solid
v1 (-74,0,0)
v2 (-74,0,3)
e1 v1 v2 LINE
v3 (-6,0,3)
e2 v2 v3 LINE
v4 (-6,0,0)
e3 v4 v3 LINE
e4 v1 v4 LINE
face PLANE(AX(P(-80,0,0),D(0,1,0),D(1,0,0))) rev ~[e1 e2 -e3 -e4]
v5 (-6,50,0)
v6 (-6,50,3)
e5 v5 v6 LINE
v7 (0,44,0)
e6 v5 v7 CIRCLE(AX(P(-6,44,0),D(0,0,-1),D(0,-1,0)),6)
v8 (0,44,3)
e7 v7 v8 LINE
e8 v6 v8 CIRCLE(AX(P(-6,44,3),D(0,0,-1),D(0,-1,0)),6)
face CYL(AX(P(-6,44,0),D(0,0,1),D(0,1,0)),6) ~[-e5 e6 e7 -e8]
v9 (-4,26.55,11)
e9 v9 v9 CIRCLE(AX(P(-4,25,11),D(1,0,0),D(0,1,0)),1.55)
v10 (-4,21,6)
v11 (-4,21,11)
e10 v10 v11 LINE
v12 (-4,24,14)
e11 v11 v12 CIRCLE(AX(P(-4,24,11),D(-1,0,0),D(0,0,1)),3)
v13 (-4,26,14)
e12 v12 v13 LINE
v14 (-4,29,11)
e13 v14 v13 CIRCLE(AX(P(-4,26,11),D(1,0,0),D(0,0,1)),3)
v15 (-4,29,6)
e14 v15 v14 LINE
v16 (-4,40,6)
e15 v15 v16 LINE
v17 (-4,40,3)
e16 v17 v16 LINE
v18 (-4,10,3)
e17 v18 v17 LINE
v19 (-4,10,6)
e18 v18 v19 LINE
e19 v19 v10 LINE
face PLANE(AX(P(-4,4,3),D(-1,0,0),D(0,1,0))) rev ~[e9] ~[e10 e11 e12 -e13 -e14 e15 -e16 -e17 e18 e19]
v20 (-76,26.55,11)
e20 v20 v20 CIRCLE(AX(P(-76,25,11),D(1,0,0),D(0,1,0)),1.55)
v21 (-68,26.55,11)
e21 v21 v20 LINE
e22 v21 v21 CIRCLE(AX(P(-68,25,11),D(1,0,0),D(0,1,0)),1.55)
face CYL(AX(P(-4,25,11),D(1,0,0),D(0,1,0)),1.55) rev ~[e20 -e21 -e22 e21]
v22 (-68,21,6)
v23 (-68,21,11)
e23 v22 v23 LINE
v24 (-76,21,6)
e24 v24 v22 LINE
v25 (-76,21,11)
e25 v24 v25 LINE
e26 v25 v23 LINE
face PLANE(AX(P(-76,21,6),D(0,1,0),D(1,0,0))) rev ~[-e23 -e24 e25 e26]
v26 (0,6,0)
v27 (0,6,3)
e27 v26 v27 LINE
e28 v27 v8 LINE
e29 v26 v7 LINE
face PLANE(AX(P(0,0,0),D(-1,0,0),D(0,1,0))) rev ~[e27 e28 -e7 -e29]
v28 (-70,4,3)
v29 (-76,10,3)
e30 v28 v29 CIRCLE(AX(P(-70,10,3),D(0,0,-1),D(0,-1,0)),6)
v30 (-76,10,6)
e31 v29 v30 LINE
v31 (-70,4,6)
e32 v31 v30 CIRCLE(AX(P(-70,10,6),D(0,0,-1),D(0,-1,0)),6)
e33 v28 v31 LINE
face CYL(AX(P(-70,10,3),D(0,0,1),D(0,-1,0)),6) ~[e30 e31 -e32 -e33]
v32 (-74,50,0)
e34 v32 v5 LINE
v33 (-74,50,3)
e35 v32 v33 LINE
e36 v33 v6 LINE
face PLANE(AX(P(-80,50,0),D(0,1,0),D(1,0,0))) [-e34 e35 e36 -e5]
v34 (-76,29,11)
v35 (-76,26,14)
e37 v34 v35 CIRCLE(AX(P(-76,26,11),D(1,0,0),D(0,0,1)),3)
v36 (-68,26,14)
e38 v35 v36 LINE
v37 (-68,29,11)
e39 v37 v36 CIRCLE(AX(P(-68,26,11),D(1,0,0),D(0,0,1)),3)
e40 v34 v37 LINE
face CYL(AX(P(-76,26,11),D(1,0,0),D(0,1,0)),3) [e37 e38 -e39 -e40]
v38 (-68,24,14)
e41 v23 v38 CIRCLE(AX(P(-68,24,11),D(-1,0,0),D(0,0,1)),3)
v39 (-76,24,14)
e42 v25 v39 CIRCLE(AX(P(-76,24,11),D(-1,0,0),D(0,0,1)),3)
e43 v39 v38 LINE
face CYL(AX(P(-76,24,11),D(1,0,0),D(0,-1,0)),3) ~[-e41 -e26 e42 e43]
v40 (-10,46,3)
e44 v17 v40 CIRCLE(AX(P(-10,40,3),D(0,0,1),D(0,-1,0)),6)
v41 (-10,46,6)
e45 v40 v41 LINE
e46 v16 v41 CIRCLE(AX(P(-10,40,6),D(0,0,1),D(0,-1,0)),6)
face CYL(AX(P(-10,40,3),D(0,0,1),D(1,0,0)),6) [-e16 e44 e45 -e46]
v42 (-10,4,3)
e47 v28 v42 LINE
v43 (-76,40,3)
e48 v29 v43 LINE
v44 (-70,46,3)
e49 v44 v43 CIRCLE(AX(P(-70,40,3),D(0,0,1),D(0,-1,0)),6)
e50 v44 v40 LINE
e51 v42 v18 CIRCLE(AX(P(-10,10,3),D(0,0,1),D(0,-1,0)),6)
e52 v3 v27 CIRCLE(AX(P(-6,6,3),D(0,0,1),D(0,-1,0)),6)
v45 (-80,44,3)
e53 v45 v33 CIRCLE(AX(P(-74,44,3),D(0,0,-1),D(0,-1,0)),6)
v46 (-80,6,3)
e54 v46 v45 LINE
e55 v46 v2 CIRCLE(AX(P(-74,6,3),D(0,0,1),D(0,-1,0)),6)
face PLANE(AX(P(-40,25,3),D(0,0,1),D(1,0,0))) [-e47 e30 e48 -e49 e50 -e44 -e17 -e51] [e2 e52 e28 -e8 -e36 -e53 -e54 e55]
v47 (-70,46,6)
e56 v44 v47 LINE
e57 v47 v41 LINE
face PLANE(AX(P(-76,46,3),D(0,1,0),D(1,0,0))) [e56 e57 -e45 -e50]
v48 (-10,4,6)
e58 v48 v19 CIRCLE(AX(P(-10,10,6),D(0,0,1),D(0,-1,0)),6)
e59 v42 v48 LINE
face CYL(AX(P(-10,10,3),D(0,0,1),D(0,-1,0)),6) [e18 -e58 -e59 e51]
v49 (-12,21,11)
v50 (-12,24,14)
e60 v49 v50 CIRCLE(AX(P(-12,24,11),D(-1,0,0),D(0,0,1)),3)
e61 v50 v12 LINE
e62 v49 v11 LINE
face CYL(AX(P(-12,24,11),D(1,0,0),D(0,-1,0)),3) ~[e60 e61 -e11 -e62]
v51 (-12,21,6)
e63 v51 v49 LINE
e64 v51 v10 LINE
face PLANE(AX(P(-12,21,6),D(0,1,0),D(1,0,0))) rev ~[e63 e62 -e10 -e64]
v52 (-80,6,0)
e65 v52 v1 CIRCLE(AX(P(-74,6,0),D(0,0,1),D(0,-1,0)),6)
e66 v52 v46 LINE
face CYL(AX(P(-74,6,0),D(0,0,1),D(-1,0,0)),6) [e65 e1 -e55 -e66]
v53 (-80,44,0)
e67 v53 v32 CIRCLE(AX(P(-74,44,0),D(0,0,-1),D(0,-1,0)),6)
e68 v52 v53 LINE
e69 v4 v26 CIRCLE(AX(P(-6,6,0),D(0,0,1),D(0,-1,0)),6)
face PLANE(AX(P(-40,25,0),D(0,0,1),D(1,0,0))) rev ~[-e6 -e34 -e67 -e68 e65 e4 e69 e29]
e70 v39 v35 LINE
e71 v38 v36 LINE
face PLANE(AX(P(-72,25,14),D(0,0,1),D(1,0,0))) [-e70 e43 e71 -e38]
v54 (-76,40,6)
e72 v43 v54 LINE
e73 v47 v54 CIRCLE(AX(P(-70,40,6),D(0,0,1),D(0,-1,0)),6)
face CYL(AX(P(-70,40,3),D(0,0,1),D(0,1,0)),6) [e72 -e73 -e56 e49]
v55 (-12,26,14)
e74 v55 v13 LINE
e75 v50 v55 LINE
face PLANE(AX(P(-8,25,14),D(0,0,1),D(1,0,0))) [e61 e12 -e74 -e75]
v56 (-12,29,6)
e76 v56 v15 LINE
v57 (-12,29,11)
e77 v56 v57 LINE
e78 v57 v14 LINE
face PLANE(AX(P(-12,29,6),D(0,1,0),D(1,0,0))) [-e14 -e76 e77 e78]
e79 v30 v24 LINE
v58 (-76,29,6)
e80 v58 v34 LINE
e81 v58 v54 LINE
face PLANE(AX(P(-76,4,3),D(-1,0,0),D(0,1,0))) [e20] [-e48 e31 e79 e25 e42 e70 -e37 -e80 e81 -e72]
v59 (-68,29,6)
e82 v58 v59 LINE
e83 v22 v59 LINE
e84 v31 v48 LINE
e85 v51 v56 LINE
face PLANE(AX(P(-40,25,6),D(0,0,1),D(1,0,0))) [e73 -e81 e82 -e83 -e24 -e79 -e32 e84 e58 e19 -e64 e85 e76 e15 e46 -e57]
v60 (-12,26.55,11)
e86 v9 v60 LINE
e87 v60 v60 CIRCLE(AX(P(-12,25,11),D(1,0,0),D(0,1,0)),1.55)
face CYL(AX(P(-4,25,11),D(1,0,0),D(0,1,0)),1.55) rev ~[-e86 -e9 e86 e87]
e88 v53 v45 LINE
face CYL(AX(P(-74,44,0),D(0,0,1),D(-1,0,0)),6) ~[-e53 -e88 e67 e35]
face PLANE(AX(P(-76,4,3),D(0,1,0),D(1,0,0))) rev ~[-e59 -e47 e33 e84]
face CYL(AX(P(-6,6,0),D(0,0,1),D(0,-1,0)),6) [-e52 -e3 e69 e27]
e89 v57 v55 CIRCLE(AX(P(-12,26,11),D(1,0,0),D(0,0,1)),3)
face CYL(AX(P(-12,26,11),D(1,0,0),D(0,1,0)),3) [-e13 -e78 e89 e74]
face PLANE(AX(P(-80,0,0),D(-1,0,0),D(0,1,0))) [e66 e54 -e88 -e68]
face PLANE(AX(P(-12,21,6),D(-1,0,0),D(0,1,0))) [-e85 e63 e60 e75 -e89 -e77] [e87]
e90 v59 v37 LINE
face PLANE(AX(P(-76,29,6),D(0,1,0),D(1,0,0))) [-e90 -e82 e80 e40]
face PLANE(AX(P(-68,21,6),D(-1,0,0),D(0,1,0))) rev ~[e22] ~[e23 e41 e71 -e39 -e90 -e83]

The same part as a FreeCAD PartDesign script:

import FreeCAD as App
import Part
import Sketcher
from FreeCAD import Vector
Q = App.Units.Quantity


def edges_at(feature, points):
    """Names of the edges that pass closest to the given points."""
    edges = feature.Shape.Edges
    near = lambda p: min(range(len(edges)), key=lambda i: edges[i].distToShape(Part.Vertex(*p))[0])
    return sorted({f"Edge{near(p) + 1}" for p in points})


def add_polygon(sketch, points):
    """Adds a closed chain of lines whose ends are joined by coincident constraints."""
    first, n = sketch.GeometryCount, len(points)
    for a, b in zip(points, points[1:] + points[:1]):
        sketch.addGeometry(Part.LineSegment(App.Vector(*a, 0), App.Vector(*b, 0)), False)
    for i in range(n):
        sketch.addConstraint(Sketcher.Constraint("Coincident", first + i, 2, first + (i + 1) % n, 1))

doc = App.newDocument("Part")
body = doc.addObject("PartDesign::Body", "Body")

sketch1 = body.newObject("Sketcher::SketchObject", "Sketch")
sketch1.AttachmentSupport = (doc.getObject("XY_Plane"), [""])
sketch1.MapMode = "FlatFace"
add_polygon(sketch1, [(-80, 50), (-80, 0), (0, 0), (0, 50)])
sketch1.addConstraint([
    Sketcher.Constraint("Vertical", 0),
    Sketcher.Constraint("Horizontal", 1),
    Sketcher.Constraint("Vertical", 2),
    Sketcher.Constraint("Horizontal", 3),
    Sketcher.Constraint("Coincident", 1, 2, -1, 1),
    Sketcher.Constraint("DistanceX", 1, 1, 1, 2, Q("80 mm")),
    Sketcher.Constraint("DistanceY", 0, 2, 0, 1, Q("50 mm")),
])
pad1 = body.newObject("PartDesign::Pad", "Pad")
pad1.Profile = sketch1
pad1.Length = 3

sketch2 = body.newObject("Sketcher::SketchObject", "Sketch001")
sketch2.AttachmentSupport = (doc.getObject("XY_Plane"), [""])
sketch2.MapMode = "FlatFace"
sketch2.AttachmentOffset = App.Placement(Vector(0, 0, 3), App.Rotation())
add_polygon(sketch2, [(-76, 46), (-76, 4), (-4, 4), (-4, 46)])
sketch2.addConstraint([
    Sketcher.Constraint("Vertical", 0),
    Sketcher.Constraint("Horizontal", 1),
    Sketcher.Constraint("Vertical", 2),
    Sketcher.Constraint("Horizontal", 3),
    Sketcher.Constraint("DistanceX", 1, 1, 1, 2, Q("72 mm")),
    Sketcher.Constraint("DistanceY", 0, 2, 0, 1, Q("42 mm")),
    Sketcher.Constraint("DistanceX", 0, 2, -1, 1, Q("76 mm")),
    Sketcher.Constraint("DistanceY", -1, 1, 0, 2, Q("4 mm")),
])
pad2 = body.newObject("PartDesign::Pad", "Pad001")
pad2.Profile = sketch2
pad2.Length = 3
doc.recompute()

fillet = body.newObject("PartDesign::Fillet", "Fillet")
fillet.Base = (pad2, edges_at(pad2, [
    (-80, 0, 1.5),
    (-76, 4, 4.5),
    (-4, 4, 4.5),
    (0, 0, 1.5),
    (0, 50, 1.5),
    (-4, 46, 4.5),
    (-76, 46, 4.5),
    (-80, 50, 1.5),
]))
fillet.Radius = 6

sketch3 = body.newObject("Sketcher::SketchObject", "Sketch002")
sketch3.AttachmentSupport = (doc.getObject("XY_Plane"), [""])
sketch3.MapMode = "FlatFace"
sketch3.AttachmentOffset = App.Placement(Vector(0, 0, 6), App.Rotation())
add_polygon(sketch3, [(-76, 29), (-76, 21), (-68, 21), (-68, 29)])
add_polygon(sketch3, [(-12, 29), (-12, 21), (-4, 21), (-4, 29)])
sketch3.addConstraint([
    Sketcher.Constraint("Vertical", 0),
    Sketcher.Constraint("Horizontal", 1),
    Sketcher.Constraint("Vertical", 2),
    Sketcher.Constraint("Horizontal", 3),
    Sketcher.Constraint("Vertical", 4),
    Sketcher.Constraint("Horizontal", 5),
    Sketcher.Constraint("Vertical", 6),
    Sketcher.Constraint("Horizontal", 7),
    Sketcher.Constraint("Horizontal", 1, 2, 4, 2),
    Sketcher.Constraint("Horizontal", 3, 2, 6, 2),
    Sketcher.Constraint("Equal", 3, 5),
    Sketcher.Constraint("Equal", 7, 0),
    Sketcher.Constraint("DistanceX", 1, 1, 1, 2, Q("8 mm")),
    Sketcher.Constraint("DistanceX", 0, 2, -1, 1, Q("76 mm")),
    Sketcher.Constraint("DistanceY", -1, 1, 0, 2, Q("21 mm")),
    Sketcher.Constraint("DistanceX", 4, 2, -1, 1, Q("12 mm")),
])
pad3 = body.newObject("PartDesign::Pad", "Pad002")
pad3.Profile = sketch3
pad3.Length = 8
doc.recompute()

fillet2 = body.newObject("PartDesign::Fillet", "Fillet001")
fillet2.Base = (pad3, edges_at(pad3, [
    (-8, 21, 14),
    (-8, 29, 14),
    (-72, 21, 14),
    (-72, 29, 14),
]))
fillet2.Radius = 3

sketch4 = body.newObject("Sketcher::SketchObject", "Sketch003")
sketch4.AttachmentSupport = (doc.getObject("YZ_Plane"), [""])
sketch4.MapMode = "FlatFace"
sketch4.AttachmentOffset = App.Placement(Vector(0, 0, -4), App.Rotation())
sketch4.addGeometry(Part.Circle(Vector(25, 11, 0), Vector(0, 0, 1), 1.6), False)
sketch4.addConstraint([
    Sketcher.Constraint("Diameter", 0, Q("3.1 mm")),
    Sketcher.Constraint("DistanceX", -1, 1, 0, 3, Q("25 mm")),
    Sketcher.Constraint("DistanceY", -1, 1, 0, 3, Q("11 mm")),
])
pocket1 = body.newObject("PartDesign::Pocket", "Pocket")
pocket1.Profile = sketch4
pocket1.Type = "ThroughAll"

doc.recompute()
